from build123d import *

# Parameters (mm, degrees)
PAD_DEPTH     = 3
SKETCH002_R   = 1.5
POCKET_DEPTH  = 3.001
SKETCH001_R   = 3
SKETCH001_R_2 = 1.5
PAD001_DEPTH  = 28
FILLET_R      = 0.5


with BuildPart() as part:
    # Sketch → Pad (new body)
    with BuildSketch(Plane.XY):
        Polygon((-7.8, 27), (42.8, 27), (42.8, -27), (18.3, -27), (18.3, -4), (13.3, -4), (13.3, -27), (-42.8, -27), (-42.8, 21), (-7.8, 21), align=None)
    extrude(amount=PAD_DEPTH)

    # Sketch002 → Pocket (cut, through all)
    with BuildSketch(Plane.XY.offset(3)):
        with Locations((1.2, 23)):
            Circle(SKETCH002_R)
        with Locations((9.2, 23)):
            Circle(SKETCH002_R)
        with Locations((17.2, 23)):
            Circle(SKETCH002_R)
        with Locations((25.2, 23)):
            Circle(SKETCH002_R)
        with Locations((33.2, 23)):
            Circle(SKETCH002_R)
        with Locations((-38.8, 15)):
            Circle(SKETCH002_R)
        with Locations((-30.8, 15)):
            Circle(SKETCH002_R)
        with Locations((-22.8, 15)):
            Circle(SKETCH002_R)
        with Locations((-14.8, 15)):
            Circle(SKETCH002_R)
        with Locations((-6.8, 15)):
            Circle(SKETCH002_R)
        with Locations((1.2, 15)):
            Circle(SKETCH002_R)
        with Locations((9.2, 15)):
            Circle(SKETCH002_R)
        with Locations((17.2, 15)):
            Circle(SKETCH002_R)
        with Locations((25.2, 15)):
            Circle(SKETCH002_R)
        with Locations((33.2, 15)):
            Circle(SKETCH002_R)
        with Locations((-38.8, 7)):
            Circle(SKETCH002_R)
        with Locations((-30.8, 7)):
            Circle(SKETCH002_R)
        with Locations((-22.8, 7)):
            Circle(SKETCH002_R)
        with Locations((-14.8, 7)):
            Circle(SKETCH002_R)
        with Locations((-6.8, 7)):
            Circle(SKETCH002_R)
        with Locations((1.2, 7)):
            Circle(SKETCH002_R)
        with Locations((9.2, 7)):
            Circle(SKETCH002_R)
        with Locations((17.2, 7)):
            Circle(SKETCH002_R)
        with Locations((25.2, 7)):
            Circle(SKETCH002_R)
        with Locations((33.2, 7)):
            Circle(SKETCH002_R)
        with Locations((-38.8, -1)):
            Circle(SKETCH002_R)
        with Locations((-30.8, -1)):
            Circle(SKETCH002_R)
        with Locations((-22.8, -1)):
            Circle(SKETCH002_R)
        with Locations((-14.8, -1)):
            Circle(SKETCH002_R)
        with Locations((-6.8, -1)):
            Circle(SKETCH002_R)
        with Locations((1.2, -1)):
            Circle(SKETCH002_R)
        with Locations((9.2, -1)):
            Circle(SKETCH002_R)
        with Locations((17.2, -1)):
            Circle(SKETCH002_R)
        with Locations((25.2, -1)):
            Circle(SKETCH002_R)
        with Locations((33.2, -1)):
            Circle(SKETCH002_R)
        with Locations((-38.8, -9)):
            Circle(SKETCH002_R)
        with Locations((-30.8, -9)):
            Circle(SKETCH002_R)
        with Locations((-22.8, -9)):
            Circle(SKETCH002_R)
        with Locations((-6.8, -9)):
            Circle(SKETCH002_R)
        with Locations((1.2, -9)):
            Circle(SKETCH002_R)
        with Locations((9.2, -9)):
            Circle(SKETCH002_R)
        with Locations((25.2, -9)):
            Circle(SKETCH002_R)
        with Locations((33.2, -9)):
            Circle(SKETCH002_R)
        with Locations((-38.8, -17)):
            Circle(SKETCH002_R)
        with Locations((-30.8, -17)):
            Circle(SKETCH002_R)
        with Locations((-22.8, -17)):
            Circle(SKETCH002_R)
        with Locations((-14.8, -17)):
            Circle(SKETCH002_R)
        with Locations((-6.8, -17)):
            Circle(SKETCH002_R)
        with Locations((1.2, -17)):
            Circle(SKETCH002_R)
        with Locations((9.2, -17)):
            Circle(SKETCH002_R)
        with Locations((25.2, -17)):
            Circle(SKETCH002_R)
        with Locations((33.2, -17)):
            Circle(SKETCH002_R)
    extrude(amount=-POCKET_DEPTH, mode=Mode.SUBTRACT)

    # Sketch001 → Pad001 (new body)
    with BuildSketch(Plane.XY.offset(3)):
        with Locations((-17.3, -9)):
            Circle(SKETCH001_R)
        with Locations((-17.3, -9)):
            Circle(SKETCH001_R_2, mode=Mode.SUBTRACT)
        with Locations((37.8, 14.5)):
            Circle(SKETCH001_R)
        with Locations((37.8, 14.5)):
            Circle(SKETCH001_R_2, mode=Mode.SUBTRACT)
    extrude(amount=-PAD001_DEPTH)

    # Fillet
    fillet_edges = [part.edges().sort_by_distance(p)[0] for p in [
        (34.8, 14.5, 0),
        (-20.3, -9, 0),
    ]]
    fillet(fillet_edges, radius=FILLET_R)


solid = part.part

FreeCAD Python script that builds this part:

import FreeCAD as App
import Part
import Sketcher


def edges_at(feature, points):
    """Names of the edges that pass closest to the given points."""
    edges = feature.Shape.Edges
    near = lambda p: min(range(len(edges)), key=lambda i: edges[i].distToShape(Part.Vertex(*p))[0])
    return sorted({f"Edge{near(p) + 1}" for p in points})


def add_polygon(sketch, points):
    """Adds a closed chain of lines whose ends are joined by coincident constraints."""
    first, n = sketch.GeometryCount, len(points)
    for a, b in zip(points, points[1:] + points[:1]):
        sketch.addGeometry(Part.LineSegment(App.Vector(*a, 0), App.Vector(*b, 0)), False)
    for i in range(n):
        sketch.addConstraint(Sketcher.Constraint("Coincident", first + i, 2, first + (i + 1) % n, 1))

doc = App.newDocument("Part")
params = doc.addObject("Spreadsheet::Sheet", "Params")
for row, (alias, value) in enumerate([
    ("sketch1_width", "35 mm"),
    ("sketch1_width2", "5 mm"),
    ("sketch1_height", "6 mm"),
    ("sketch1_height2", "48 mm"),
    ("sketch1_height3", "23 mm"),
    ("pad1_length", "3 mm"),
    ("sketch2_diameter", "3 mm"),
    ("sketch3_diameter", "6 mm"),
    ("sketch3_diameter2", "3 mm"),
    ("pad2_length", "28 mm"),
    ("fillet_radius", "0.5 mm"),
], start=1):
    params.set(f"A{row}", alias)
    params.set(f"B{row}", "=" + value)
    params.setAlias(f"B{row}", alias)

body = doc.addObject("PartDesign::Body", "Body")

# Sketch on XY plane
sketch1 = body.newObject("Sketcher::SketchObject", "Sketch")
sketch1.AttachmentSupport = (doc.getObject("XY_Plane"), [""])
sketch1.MapMode = "FlatFace"
add_polygon(sketch1, [(43, 27), (-8, 27), (-8, 21), (-43, 21), (-43, -27), (13, -27), (13, -4), (18, -4), (18, -27), (43, -27)])  # lines 0-9
sketch1.addConstraint(Sketcher.Constraint("Horizontal", 0))
sketch1.addConstraint(Sketcher.Constraint("Vertical", 1))
sketch1.addConstraint(Sketcher.Constraint("Horizontal", 2))
sketch1.addConstraint(Sketcher.Constraint("Vertical", 3))
sketch1.addConstraint(Sketcher.Constraint("Horizontal", 4))
sketch1.addConstraint(Sketcher.Constraint("Vertical", 5))
sketch1.addConstraint(Sketcher.Constraint("Horizontal", 6))
sketch1.addConstraint(Sketcher.Constraint("Vertical", 7))
sketch1.addConstraint(Sketcher.Constraint("Horizontal", 8))
sketch1.addConstraint(Sketcher.Constraint("Vertical", 9))
sketch1.addConstraint(Sketcher.Constraint("Symmetric", 3, 2, 9, 2, -1, 1))
sketch1.addConstraint(Sketcher.Constraint("Horizontal", 4, 2, 7, 2))
sketch1.addConstraint(Sketcher.Constraint("DistanceX", 2, 2, 2, 1, 35.0))
sketch1.addConstraint(Sketcher.Constraint("DistanceX", 6, 1, 6, 2, 5.0))
sketch1.addConstraint(Sketcher.Constraint("DistanceY", 1, 2, 1, 1, 6.0))
sketch1.addConstraint(Sketcher.Constraint("DistanceY", 3, 2, 3, 1, 48.0))
sketch1.addConstraint(Sketcher.Constraint("DistanceY", 5, 1, 5, 2, 23.0))
sketch1.addConstraint(Sketcher.Constraint("DistanceX", 0, 2, 0, 1, 50.6))
sketch1.addConstraint(Sketcher.Constraint("DistanceX", 4, 1, 4, 2, 56.1))
sketch1.setExpression("Constraints[22]", "Params.sketch1_width")
sketch1.setExpression("Constraints[23]", "Params.sketch1_width2")
sketch1.setExpression("Constraints[24]", "Params.sketch1_height")
sketch1.setExpression("Constraints[25]", "Params.sketch1_height2")
sketch1.setExpression("Constraints[26]", "Params.sketch1_height3")
pad1 = body.newObject("PartDesign::Pad", "Pad")
pad1.Profile = sketch1
pad1.setExpression("Length", "Params.pad1_length")

# Sketch on XY plane
sketch2 = body.newObject("Sketcher::SketchObject", "Sketch001")
sketch2.AttachmentSupport = (doc.getObject("XY_Plane"), [""])
sketch2.MapMode = "FlatFace"
sketch2.AttachmentOffset = App.Placement(App.Vector(0, 0, 3), App.Rotation())
sketch2.addGeometry(Part.Circle(App.Vector(1.2, 23, 0), App.Vector(0, 0, 1), 1.5), False)
sketch2.addGeometry(Part.Circle(App.Vector(9.2, 23, 0), App.Vector(0, 0, 1), 1.5), False)
sketch2.addGeometry(Part.Circle(App.Vector(17.2, 23, 0), App.Vector(0, 0, 1), 1.5), False)
sketch2.addGeometry(Part.Circle(App.Vector(25.2, 23, 0), App.Vector(0, 0, 1), 1.5), False)
sketch2.addGeometry(Part.Circle(App.Vector(33.2, 23, 0), App.Vector(0, 0, 1), 1.5), False)
sketch2.addGeometry(Part.Circle(App.Vector(-38.8, 15, 0), App.Vector(0, 0, 1), 1.5), False)
sketch2.addGeometry(Part.Circle(App.Vector(-30.8, 15, 0), App.Vector(0, 0, 1), 1.5), False)
sketch2.addGeometry(Part.Circle(App.Vector(-22.8, 15, 0), App.Vector(0, 0, 1), 1.5), False)
sketch2.addGeometry(Part.Circle(App.Vector(-14.8, 15, 0), App.Vector(0, 0, 1), 1.5), False)
sketch2.addGeometry(Part.Circle(App.Vector(-6.8, 15, 0), App.Vector(0, 0, 1), 1.5), False)
sketch2.addGeometry(Part.Circle(App.Vector(1.2, 15, 0), App.Vector(0, 0, 1), 1.5), False)
sketch2.addGeometry(Part.Circle(App.Vector(9.2, 15, 0), App.Vector(0, 0, 1), 1.5), False)
sketch2.addGeometry(Part.Circle(App.Vector(17.2, 15, 0), App.Vector(0, 0, 1), 1.5), False)
sketch2.addGeometry(Part.Circle(App.Vector(25.2, 15, 0), App.Vector(0, 0, 1), 1.5), False)
sketch2.addGeometry(Part.Circle(App.Vector(33.2, 15, 0), App.Vector(0, 0, 1), 1.5), False)
sketch2.addGeometry(Part.Circle(App.Vector(-38.8, 7, 0), App.Vector(0, 0, 1), 1.5), False)
sketch2.addGeometry(Part.Circle(App.Vector(-30.8, 7, 0), App.Vector(0, 0, 1), 1.5), False)
sketch2.addGeometry(Part.Circle(App.Vector(-22.8, 7, 0), App.Vector(0, 0, 1), 1.5), False)
sketch2.addGeometry(Part.Circle(App.Vector(-14.8, 7, 0), App.Vector(0, 0, 1), 1.5), False)
sketch2.addGeometry(Part.Circle(App.Vector(-6.8, 7, 0), App.Vector(0, 0, 1), 1.5), False)
sketch2.addGeometry(Part.Circle(App.Vector(1.2, 7, 0), App.Vector(0, 0, 1), 1.5), False)
sketch2.addGeometry(Part.Circle(App.Vector(9.2, 7, 0), App.Vector(0, 0, 1), 1.5), False)
sketch2.addGeometry(Part.Circle(App.Vector(17.2, 7, 0), App.Vector(0, 0, 1), 1.5), False)
sketch2.addGeometry(Part.Circle(App.Vector(25.2, 7, 0), App.Vector(0, 0, 1), 1.5), False)
sketch2.addGeometry(Part.Circle(App.Vector(33.2, 7, 0), App.Vector(0, 0, 1), 1.5), False)
sketch2.addGeometry(Part.Circle(App.Vector(-38.8, -1, 0), App.Vector(0, 0, 1), 1.5), False)
sketch2.addGeometry(Part.Circle(App.Vector(-30.8, -1, 0), App.Vector(0, 0, 1), 1.5), False)
sketch2.addGeometry(Part.Circle(App.Vector(-22.8, -1, 0), App.Vector(0, 0, 1), 1.5), False)
sketch2.addGeometry(Part.Circle(App.Vector(-14.8, -1, 0), App.Vector(0, 0, 1), 1.5), False)
sketch2.addGeometry(Part.Circle(App.Vector(-6.8, -1, 0), App.Vector(0, 0, 1), 1.5), False)
sketch2.addGeometry(Part.Circle(App.Vector(1.2, -1, 0), App.Vector(0, 0, 1), 1.5), False)
sketch2.addGeometry(Part.Circle(App.Vector(9.2, -1, 0), App.Vector(0, 0, 1), 1.5), False)
sketch2.addGeometry(Part.Circle(App.Vector(17.2, -1, 0), App.Vector(0, 0, 1), 1.5), False)
sketch2.addGeometry(Part.Circle(App.Vector(25.2, -1, 0), App.Vector(0, 0, 1), 1.5), False)
sketch2.addGeometry(Part.Circle(App.Vector(33.2, -1, 0), App.Vector(0, 0, 1), 1.5), False)
sketch2.addGeometry(Part.Circle(App.Vector(-38.8, -9, 0), App.Vector(0, 0, 1), 1.5), False)
sketch2.addGeometry(Part.Circle(App.Vector(-30.8, -9, 0), App.Vector(0, 0, 1), 1.5), False)
sketch2.addGeometry(Part.Circle(App.Vector(-22.8, -9, 0), App.Vector(0, 0, 1), 1.5), False)
sketch2.addGeometry(Part.Circle(App.Vector(-6.8, -9, 0), App.Vector(0, 0, 1), 1.5), False)
sketch2.addGeometry(Part.Circle(App.Vector(1.2, -9, 0), App.Vector(0, 0, 1), 1.5), False)
sketch2.addGeometry(Part.Circle(App.Vector(9.2, -9, 0), App.Vector(0, 0, 1), 1.5), False)
sketch2.addGeometry(Part.Circle(App.Vector(25.2, -9, 0), App.Vector(0, 0, 1), 1.5), False)
sketch2.addGeometry(Part.Circle(App.Vector(33.2, -9, 0), App.Vector(0, 0, 1), 1.5), False)
sketch2.addGeometry(Part.Circle(App.Vector(-38.8, -17, 0), App.Vector(0, 0, 1), 1.5), False)
sketch2.addGeometry(Part.Circle(App.Vector(-30.8, -17, 0), App.Vector(0, 0, 1), 1.5), False)
sketch2.addGeometry(Part.Circle(App.Vector(-22.8, -17, 0), App.Vector(0, 0, 1), 1.5), False)
sketch2.addGeometry(Part.Circle(App.Vector(-14.8, -17, 0), App.Vector(0, 0, 1), 1.5), False)
sketch2.addGeometry(Part.Circle(App.Vector(-6.8, -17, 0), App.Vector(0, 0, 1), 1.5), False)
sketch2.addGeometry(Part.Circle(App.Vector(1.2, -17, 0), App.Vector(0, 0, 1), 1.5), False)
sketch2.addGeometry(Part.Circle(App.Vector(9.2, -17, 0), App.Vector(0, 0, 1), 1.5), False)
sketch2.addGeometry(Part.Circle(App.Vector(25.2, -17, 0), App.Vector(0, 0, 1), 1.5), False)
sketch2.addGeometry(Part.Circle(App.Vector(33.2, -17, 0), App.Vector(0, 0, 1), 1.5), False)
sketch2.addConstraint(Sketcher.Constraint("Equal", 0, 1))
sketch2.addConstraint(Sketcher.Constraint("Equal", 1, 2))
sketch2.addConstraint(Sketcher.Constraint("Equal", 2, 3))
sketch2.addConstraint(Sketcher.Constraint("Equal", 3, 4))
sketch2.addConstraint(Sketcher.Constraint("Equal", 4, 5))
sketch2.addConstraint(Sketcher.Constraint("Equal", 5, 6))
sketch2.addConstraint(Sketcher.Constraint("Equal", 6, 7))
sketch2.addConstraint(Sketcher.Constraint("Equal", 7, 8))
sketch2.addConstraint(Sketcher.Constraint("Equal", 8, 9))
sketch2.addConstraint(Sketcher.Constraint("Equal", 9, 10))
sketch2.addConstraint(Sketcher.Constraint("Equal", 10, 11))
sketch2.addConstraint(Sketcher.Constraint("Equal", 11, 12))
sketch2.addConstraint(Sketcher.Constraint("Equal", 12, 13))
sketch2.addConstraint(Sketcher.Constraint("Equal", 13, 14))
sketch2.addConstraint(Sketcher.Constraint("Equal", 14, 15))
sketch2.addConstraint(Sketcher.Constraint("Equal", 15, 16))
sketch2.addConstraint(Sketcher.Constraint("Equal", 16, 17))
sketch2.addConstraint(Sketcher.Constraint("Equal", 17, 18))
sketch2.addConstraint(Sketcher.Constraint("Equal", 18, 19))
sketch2.addConstraint(Sketcher.Constraint("Equal", 19, 20))
sketch2.addConstraint(Sketcher.Constraint("Equal", 20, 21))
sketch2.addConstraint(Sketcher.Constraint("Equal", 21, 22))
sketch2.addConstraint(Sketcher.Constraint("Equal", 22, 23))
sketch2.addConstraint(Sketcher.Constraint("Equal", 23, 24))
sketch2.addConstraint(Sketcher.Constraint("Equal", 24, 25))
sketch2.addConstraint(Sketcher.Constraint("Equal", 25, 26))
sketch2.addConstraint(Sketcher.Constraint("Equal", 26, 27))
sketch2.addConstraint(Sketcher.Constraint("Equal", 27, 28))
sketch2.addConstraint(Sketcher.Constraint("Equal", 28, 29))
sketch2.addConstraint(Sketcher.Constraint("Equal", 29, 30))
sketch2.addConstraint(Sketcher.Constraint("Equal", 30, 31))
sketch2.addConstraint(Sketcher.Constraint("Equal", 31, 32))
sketch2.addConstraint(Sketcher.Constraint("Equal", 32, 33))
sketch2.addConstraint(Sketcher.Constraint("Equal", 33, 34))
sketch2.addConstraint(Sketcher.Constraint("Equal", 34, 35))
sketch2.addConstraint(Sketcher.Constraint("Equal", 35, 36))
sketch2.addConstraint(Sketcher.Constraint("Equal", 36, 37))
sketch2.addConstraint(Sketcher.Constraint("Equal", 37, 38))
sketch2.addConstraint(Sketcher.Constraint("Equal", 38, 39))
sketch2.addConstraint(Sketcher.Constraint("Equal", 39, 40))
sketch2.addConstraint(Sketcher.Constraint("Equal", 40, 41))
sketch2.addConstraint(Sketcher.Constraint("Equal", 41, 42))
sketch2.addConstraint(Sketcher.Constraint("Equal", 42, 43))
sketch2.addConstraint(Sketcher.Constraint("Equal", 43, 44))
sketch2.addConstraint(Sketcher.Constraint("Equal", 44, 45))
sketch2.addConstraint(Sketcher.Constraint("Equal", 45, 46))
sketch2.addConstraint(Sketcher.Constraint("Equal", 46, 47))
sketch2.addConstraint(Sketcher.Constraint("Equal", 47, 48))
sketch2.addConstraint(Sketcher.Constraint("Equal", 48, 49))
sketch2.addConstraint(Sketcher.Constraint("Equal", 49, 50))
sketch2.addConstraint(Sketcher.Constraint("Equal", 50, 51))
sketch2.addConstraint(Sketcher.Constraint("Horizontal", 0, 3, 1, 3))
sketch2.addConstraint(Sketcher.Constraint("Horizontal", 1, 3, 2, 3))
sketch2.addConstraint(Sketcher.Constraint("Horizontal", 2, 3, 3, 3))
sketch2.addConstraint(Sketcher.Constraint("Horizontal", 3, 3, 4, 3))
sketch2.addConstraint(Sketcher.Constraint("Horizontal", 5, 3, 6, 3))
sketch2.addConstraint(Sketcher.Constraint("Horizontal", 6, 3, 7, 3))
sketch2.addConstraint(Sketcher.Constraint("Horizontal", 7, 3, 8, 3))
sketch2.addConstraint(Sketcher.Constraint("Horizontal", 8, 3, 9, 3))
sketch2.addConstraint(Sketcher.Constraint("Horizontal", 9, 3, 10, 3))
sketch2.addConstraint(Sketcher.Constraint("Horizontal", 10, 3, 11, 3))
sketch2.addConstraint(Sketcher.Constraint("Horizontal", 11, 3, 12, 3))
sketch2.addConstraint(Sketcher.Constraint("Horizontal", 12, 3, 13, 3))
sketch2.addConstraint(Sketcher.Constraint("Horizontal", 13, 3, 14, 3))
sketch2.addConstraint(Sketcher.Constraint("Horizontal", 15, 3, 16, 3))
sketch2.addConstraint(Sketcher.Constraint("Horizontal", 16, 3, 17, 3))
sketch2.addConstraint(Sketcher.Constraint("Horizontal", 17, 3, 18, 3))
sketch2.addConstraint(Sketcher.Constraint("Horizontal", 18, 3, 19, 3))
sketch2.addConstraint(Sketcher.Constraint("Horizontal", 19, 3, 20, 3))
sketch2.addConstraint(Sketcher.Constraint("Horizontal", 20, 3, 21, 3))
sketch2.addConstraint(Sketcher.Constraint("Horizontal", 21, 3, 22, 3))
sketch2.addConstraint(Sketcher.Constraint("Horizontal", 22, 3, 23, 3))
sketch2.addConstraint(Sketcher.Constraint("Horizontal", 23, 3, 24, 3))
sketch2.addConstraint(Sketcher.Constraint("Horizontal", 25, 3, 26, 3))
sketch2.addConstraint(Sketcher.Constraint("Horizontal", 26, 3, 27, 3))
sketch2.addConstraint(Sketcher.Constraint("Horizontal", 27, 3, 28, 3))
sketch2.addConstraint(Sketcher.Constraint("Horizontal", 28, 3, 29, 3))
sketch2.addConstraint(Sketcher.Constraint("Horizontal", 29, 3, 30, 3))
sketch2.addConstraint(Sketcher.Constraint("Horizontal", 30, 3, 31, 3))
sketch2.addConstraint(Sketcher.Constraint("Horizontal", 31, 3, 32, 3))
sketch2.addConstraint(Sketcher.Constraint("Horizontal", 32, 3, 33, 3))
sketch2.addConstraint(Sketcher.Constraint("Horizontal", 33, 3, 34, 3))
sketch2.addConstraint(Sketcher.Constraint("Horizontal", 35, 3, 36, 3))
sketch2.addConstraint(Sketcher.Constraint("Horizontal", 36, 3, 37, 3))
sketch2.addConstraint(Sketcher.Constraint("Horizontal", 37, 3, 38, 3))
sketch2.addConstraint(Sketcher.Constraint("Horizontal", 38, 3, 39, 3))
sketch2.addConstraint(Sketcher.Constraint("Horizontal", 39, 3, 40, 3))
sketch2.addConstraint(Sketcher.Constraint("Horizontal", 40, 3, 41, 3))
sketch2.addConstraint(Sketcher.Constraint("Horizontal", 41, 3, 42, 3))
sketch2.addConstraint(Sketcher.Constraint("Horizontal", 43, 3, 44, 3))
sketch2.addConstraint(Sketcher.Constraint("Horizontal", 44, 3, 45, 3))
sketch2.addConstraint(Sketcher.Constraint("Horizontal", 45, 3, 46, 3))
sketch2.addConstraint(Sketcher.Constraint("Horizontal", 46, 3, 47, 3))
sketch2.addConstraint(Sketcher.Constraint("Horizontal", 47, 3, 48, 3))
sketch2.addConstraint(Sketcher.Constraint("Horizontal", 48, 3, 49, 3))
sketch2.addConstraint(Sketcher.Constraint("Horizontal", 49, 3, 50, 3))
sketch2.addConstraint(Sketcher.Constraint("Horizontal", 50, 3, 51, 3))
sketch2.addConstraint(Sketcher.Constraint("Vertical", 0, 3, 10, 3))
sketch2.addConstraint(Sketcher.Constraint("Vertical", 1, 3, 11, 3))
sketch2.addConstraint(Sketcher.Constraint("Vertical", 2, 3, 12, 3))
sketch2.addConstraint(Sketcher.Constraint("Vertical", 3, 3, 13, 3))
sketch2.addConstraint(Sketcher.Constraint("Vertical", 4, 3, 14, 3))
sketch2.addConstraint(Sketcher.Constraint("Vertical", 5, 3, 15, 3))
sketch2.addConstraint(Sketcher.Constraint("Vertical", 6, 3, 16, 3))
sketch2.addConstraint(Sketcher.Constraint("Vertical", 7, 3, 17, 3))
sketch2.addConstraint(Sketcher.Constraint("Vertical", 8, 3, 18, 3))
sketch2.addConstraint(Sketcher.Constraint("Vertical", 9, 3, 19, 3))
sketch2.addConstraint(Sketcher.Constraint("Vertical", 10, 3, 20, 3))
sketch2.addConstraint(Sketcher.Constraint("Vertical", 11, 3, 21, 3))
sketch2.addConstraint(Sketcher.Constraint("Vertical", 12, 3, 22, 3))
sketch2.addConstraint(Sketcher.Constraint("Vertical", 13, 3, 23, 3))
sketch2.addConstraint(Sketcher.Constraint("Vertical", 14, 3, 24, 3))
sketch2.addConstraint(Sketcher.Constraint("Vertical", 15, 3, 25, 3))
sketch2.addConstraint(Sketcher.Constraint("Vertical", 16, 3, 26, 3))
sketch2.addConstraint(Sketcher.Constraint("Vertical", 17, 3, 27, 3))
sketch2.addConstraint(Sketcher.Constraint("Vertical", 18, 3, 28, 3))
sketch2.addConstraint(Sketcher.Constraint("Vertical", 19, 3, 29, 3))
sketch2.addConstraint(Sketcher.Constraint("Vertical", 20, 3, 30, 3))
sketch2.addConstraint(Sketcher.Constraint("Vertical", 21, 3, 31, 3))
sketch2.addConstraint(Sketcher.Constraint("Vertical", 22, 3, 32, 3))
sketch2.addConstraint(Sketcher.Constraint("Vertical", 23, 3, 33, 3))
sketch2.addConstraint(Sketcher.Constraint("Vertical", 24, 3, 34, 3))
sketch2.addConstraint(Sketcher.Constraint("Vertical", 25, 3, 35, 3))
sketch2.addConstraint(Sketcher.Constraint("Vertical", 26, 3, 36, 3))
sketch2.addConstraint(Sketcher.Constraint("Vertical", 27, 3, 37, 3))
sketch2.addConstraint(Sketcher.Constraint("Vertical", 29, 3, 38, 3))
sketch2.addConstraint(Sketcher.Constraint("Vertical", 30, 3, 39, 3))
sketch2.addConstraint(Sketcher.Constraint("Vertical", 31, 3, 40, 3))
sketch2.addConstraint(Sketcher.Constraint("Vertical", 33, 3, 41, 3))
sketch2.addConstraint(Sketcher.Constraint("Vertical", 34, 3, 42, 3))
sketch2.addConstraint(Sketcher.Constraint("Vertical", 35, 3, 43, 3))
sketch2.addConstraint(Sketcher.Constraint("Vertical", 36, 3, 44, 3))
sketch2.addConstraint(Sketcher.Constraint("Vertical", 37, 3, 45, 3))
sketch2.addConstraint(Sketcher.Constraint("Vertical", 28, 3, 46, 3))
sketch2.addConstraint(Sketcher.Constraint("Vertical", 38, 3, 47, 3))
sketch2.addConstraint(Sketcher.Constraint("Vertical", 39, 3, 48, 3))
sketch2.addConstraint(Sketcher.Constraint("Vertical", 40, 3, 49, 3))
sketch2.addConstraint(Sketcher.Constraint("Vertical", 41, 3, 50, 3))
sketch2.addConstraint(Sketcher.Constraint("Vertical", 42, 3, 51, 3))
sketch2.addConstraint(Sketcher.Constraint("Diameter", 0, 3.0))
sketch2.addConstraint(Sketcher.Constraint("DistanceY", -1, 1, 0, 3, 23.0))
sketch2.addConstraint(Sketcher.Constraint("DistanceY", -1, 1, 5, 3, 15.0))
sketch2.addConstraint(Sketcher.Constraint("DistanceY", -1, 1, 15, 3, 7.0))
sketch2.addConstraint(Sketcher.Constraint("DistanceY", 25, 3, -1, 1, 1.0))
sketch2.addConstraint(Sketcher.Constraint("DistanceY", 35, 3, -1, 1, 9.0))
sketch2.addConstraint(Sketcher.Constraint("DistanceY", 43, 3, -1, 1, 17.0))
sketch2.addConstraint(Sketcher.Constraint("DistanceX", 0, 3, 1, 3, 8.0))
sketch2.addConstraint(Sketcher.Constraint("DistanceX", 1, 3, 2, 3, 8.0))
sketch2.addConstraint(Sketcher.Constraint("DistanceX", 2, 3, 3, 3, 8.0))
sketch2.addConstraint(Sketcher.Constraint("DistanceX", 3, 3, 4, 3, 8.0))
sketch2.addConstraint(Sketcher.Constraint("DistanceX", 5, 3, 0, 3, 40.0))
sketch2.addConstraint(Sketcher.Constraint("DistanceX", 5, 3, 6, 3, 8.0))
sketch2.addConstraint(Sketcher.Constraint("DistanceX", 6, 3, 7, 3, 8.0))
sketch2.addConstraint(Sketcher.Constraint("DistanceX", 7, 3, 8, 3, 8.0))
sketch2.addConstraint(Sketcher.Constraint("DistanceX", 8, 3, 9, 3, 8.0))
sketch2.addConstraint(Sketcher.Constraint("DistanceX", -1, 1, 0, 3, 1.2))
sketch2.setExpression("Constraints[139]", "Params.sketch2_diameter")
pocket1 = body.newObject("PartDesign::Pocket", "Pocket")
pocket1.Profile = sketch2
pocket1.Type = "ThroughAll"

# Sketch on XY plane
sketch3 = body.newObject("Sketcher::SketchObject", "Sketch002")
sketch3.AttachmentSupport = (doc.getObject("XY_Plane"), [""])
sketch3.MapMode = "FlatFace"
sketch3.AttachmentOffset = App.Placement(App.Vector(0, 0, 3), App.Rotation())
sketch3.addGeometry(Part.Circle(App.Vector(-17.3, -9, 0), App.Vector(0, 0, 1), 3), False)
sketch3.addGeometry(Part.Circle(App.Vector(-17.3, -9, 0), App.Vector(0, 0, 1), 1.5), False)
sketch3.addGeometry(Part.Circle(App.Vector(37.8, 14.5, 0), App.Vector(0, 0, 1), 3), False)
sketch3.addGeometry(Part.Circle(App.Vector(37.8, 14.5, 0), App.Vector(0, 0, 1), 1.5), False)
sketch3.addConstraint(Sketcher.Constraint("Coincident", 1, 3, 0, 3))
sketch3.addConstraint(Sketcher.Constraint("Coincident", 3, 3, 2, 3))
sketch3.addConstraint(Sketcher.Constraint("Equal", 0, 2))
sketch3.addConstraint(Sketcher.Constraint("Equal", 1, 3))
sketch3.addConstraint(Sketcher.Constraint("Diameter", 0, 6.0))
sketch3.addConstraint(Sketcher.Constraint("Diameter", 1, 3.0))
sketch3.addConstraint(Sketcher.Constraint("DistanceY", 0, 3, -1, 1, 9.0))
sketch3.addConstraint(Sketcher.Constraint("DistanceX", 0, 3, -1, 1, 17.3))
sketch3.addConstraint(Sketcher.Constraint("DistanceX", -1, 1, 2, 3, 37.8))
sketch3.addConstraint(Sketcher.Constraint("DistanceY", -1, 1, 2, 3, 14.5))
sketch3.setExpression("Constraints[4]", "Params.sketch3_diameter")
sketch3.setExpression("Constraints[5]", "Params.sketch3_diameter2")
pad2 = body.newObject("PartDesign::Pad", "Pad001")
pad2.Profile = sketch3
pad2.setExpression("Length", "Params.pad2_length")
pad2.Reversed = True
doc.recompute()

fillet = body.newObject("PartDesign::Fillet", "Fillet")
fillet.Base = (pad2, edges_at(pad2, [(34.8, 14.5, 0), (-20.3, -9, 0)]))
fillet.setExpression("Radius", "Params.fillet_radius")

doc.recompute()
